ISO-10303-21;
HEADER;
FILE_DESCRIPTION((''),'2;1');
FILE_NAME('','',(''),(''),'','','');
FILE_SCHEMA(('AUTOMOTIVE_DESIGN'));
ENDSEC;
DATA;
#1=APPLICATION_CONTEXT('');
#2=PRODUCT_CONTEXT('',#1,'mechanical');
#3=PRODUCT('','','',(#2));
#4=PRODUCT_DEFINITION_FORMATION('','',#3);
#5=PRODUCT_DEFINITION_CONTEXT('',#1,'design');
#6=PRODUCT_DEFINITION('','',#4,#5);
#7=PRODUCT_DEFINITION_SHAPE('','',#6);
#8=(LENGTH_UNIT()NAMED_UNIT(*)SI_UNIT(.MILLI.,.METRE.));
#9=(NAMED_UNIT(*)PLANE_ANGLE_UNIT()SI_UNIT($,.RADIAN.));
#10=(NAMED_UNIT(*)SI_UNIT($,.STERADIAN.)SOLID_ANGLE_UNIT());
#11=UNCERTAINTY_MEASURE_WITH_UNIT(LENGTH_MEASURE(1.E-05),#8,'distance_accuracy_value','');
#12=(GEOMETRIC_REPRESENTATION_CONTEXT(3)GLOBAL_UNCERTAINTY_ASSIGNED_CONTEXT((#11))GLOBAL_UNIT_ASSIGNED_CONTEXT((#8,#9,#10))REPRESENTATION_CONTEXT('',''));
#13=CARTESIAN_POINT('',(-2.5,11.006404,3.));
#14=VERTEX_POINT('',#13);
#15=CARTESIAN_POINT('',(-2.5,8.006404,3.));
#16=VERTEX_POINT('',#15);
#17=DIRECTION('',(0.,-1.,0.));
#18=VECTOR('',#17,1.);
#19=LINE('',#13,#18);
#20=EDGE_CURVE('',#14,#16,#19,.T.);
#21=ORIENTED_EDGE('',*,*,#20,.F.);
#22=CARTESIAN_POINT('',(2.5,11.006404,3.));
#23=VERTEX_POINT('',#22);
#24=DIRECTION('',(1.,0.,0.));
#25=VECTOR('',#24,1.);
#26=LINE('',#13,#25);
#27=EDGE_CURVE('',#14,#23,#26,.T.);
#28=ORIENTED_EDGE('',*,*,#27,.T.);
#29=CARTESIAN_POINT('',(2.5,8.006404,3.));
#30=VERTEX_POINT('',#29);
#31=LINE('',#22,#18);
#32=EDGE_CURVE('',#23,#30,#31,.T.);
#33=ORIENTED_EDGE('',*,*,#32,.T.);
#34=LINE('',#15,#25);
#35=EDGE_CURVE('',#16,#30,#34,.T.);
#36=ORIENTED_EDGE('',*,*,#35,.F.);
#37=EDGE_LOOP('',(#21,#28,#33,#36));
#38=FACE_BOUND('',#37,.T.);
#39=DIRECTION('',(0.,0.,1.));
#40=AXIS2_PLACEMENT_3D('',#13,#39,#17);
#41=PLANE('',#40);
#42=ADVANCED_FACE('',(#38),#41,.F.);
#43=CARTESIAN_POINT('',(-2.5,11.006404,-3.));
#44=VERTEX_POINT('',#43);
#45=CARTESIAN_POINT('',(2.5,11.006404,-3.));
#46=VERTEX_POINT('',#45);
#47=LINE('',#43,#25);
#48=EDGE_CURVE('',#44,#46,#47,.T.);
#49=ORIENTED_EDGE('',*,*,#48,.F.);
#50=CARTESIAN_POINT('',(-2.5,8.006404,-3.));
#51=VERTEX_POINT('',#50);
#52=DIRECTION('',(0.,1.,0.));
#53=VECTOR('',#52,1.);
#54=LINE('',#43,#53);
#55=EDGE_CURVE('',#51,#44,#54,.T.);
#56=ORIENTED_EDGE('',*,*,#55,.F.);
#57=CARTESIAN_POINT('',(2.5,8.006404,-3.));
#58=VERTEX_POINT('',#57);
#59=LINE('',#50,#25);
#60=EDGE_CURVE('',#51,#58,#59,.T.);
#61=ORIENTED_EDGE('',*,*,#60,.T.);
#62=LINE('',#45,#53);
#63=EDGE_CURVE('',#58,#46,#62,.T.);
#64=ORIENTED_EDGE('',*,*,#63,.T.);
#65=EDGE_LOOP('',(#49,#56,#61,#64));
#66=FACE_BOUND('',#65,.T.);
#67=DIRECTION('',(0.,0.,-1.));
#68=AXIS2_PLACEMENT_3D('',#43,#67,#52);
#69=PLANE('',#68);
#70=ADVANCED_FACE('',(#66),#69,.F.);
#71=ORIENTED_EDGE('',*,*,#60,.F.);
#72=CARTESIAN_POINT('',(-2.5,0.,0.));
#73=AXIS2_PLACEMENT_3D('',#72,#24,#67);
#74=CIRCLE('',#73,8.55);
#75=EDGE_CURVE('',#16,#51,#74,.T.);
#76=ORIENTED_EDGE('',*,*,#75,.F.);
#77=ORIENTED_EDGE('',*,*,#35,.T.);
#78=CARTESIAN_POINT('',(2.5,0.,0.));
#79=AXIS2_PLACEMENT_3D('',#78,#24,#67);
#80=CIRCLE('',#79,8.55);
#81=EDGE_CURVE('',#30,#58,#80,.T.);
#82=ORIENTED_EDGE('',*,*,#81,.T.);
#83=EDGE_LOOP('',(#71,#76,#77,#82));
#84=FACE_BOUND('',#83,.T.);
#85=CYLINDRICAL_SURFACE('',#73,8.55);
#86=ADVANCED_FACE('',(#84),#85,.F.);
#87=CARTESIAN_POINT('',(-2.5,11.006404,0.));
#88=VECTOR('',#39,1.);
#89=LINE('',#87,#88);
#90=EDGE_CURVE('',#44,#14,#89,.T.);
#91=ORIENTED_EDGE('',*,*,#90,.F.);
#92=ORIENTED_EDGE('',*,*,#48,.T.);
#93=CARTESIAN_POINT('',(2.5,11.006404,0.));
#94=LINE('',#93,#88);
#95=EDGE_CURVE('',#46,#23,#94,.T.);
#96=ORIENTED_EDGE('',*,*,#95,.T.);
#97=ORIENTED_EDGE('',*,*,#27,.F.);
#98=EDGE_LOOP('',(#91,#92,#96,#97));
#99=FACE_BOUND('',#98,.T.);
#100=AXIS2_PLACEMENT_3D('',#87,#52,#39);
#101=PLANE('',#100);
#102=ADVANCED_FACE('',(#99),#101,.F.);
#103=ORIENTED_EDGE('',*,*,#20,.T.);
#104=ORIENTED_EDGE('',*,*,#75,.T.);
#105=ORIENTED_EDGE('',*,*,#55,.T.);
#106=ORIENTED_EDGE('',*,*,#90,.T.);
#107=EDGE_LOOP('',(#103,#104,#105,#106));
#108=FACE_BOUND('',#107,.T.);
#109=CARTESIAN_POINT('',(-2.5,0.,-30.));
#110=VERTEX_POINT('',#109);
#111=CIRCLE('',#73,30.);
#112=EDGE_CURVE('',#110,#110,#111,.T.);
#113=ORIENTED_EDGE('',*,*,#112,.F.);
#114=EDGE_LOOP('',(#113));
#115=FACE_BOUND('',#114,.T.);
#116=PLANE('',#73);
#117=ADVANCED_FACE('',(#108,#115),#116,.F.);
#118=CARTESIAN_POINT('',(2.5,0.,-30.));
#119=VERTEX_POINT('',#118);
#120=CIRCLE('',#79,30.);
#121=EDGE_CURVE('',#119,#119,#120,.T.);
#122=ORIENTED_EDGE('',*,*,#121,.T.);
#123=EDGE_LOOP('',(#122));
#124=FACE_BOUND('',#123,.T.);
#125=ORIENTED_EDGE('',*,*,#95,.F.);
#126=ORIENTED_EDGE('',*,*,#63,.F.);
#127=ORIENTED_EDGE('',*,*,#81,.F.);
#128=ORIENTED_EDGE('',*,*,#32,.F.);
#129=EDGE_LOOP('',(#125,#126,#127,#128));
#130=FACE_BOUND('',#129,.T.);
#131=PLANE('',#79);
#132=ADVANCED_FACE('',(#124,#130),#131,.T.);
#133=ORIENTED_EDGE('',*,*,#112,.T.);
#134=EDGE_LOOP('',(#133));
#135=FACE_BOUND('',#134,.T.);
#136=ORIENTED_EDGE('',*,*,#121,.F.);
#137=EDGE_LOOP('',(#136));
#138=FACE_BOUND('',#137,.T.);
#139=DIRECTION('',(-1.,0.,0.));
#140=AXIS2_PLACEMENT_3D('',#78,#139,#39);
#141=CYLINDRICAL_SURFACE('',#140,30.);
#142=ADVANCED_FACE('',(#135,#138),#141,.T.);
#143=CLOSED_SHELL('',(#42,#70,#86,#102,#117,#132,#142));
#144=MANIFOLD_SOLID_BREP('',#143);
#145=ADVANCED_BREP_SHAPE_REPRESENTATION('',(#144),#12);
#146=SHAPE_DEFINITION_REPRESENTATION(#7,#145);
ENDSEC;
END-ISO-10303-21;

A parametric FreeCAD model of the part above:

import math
import FreeCAD as App
import Part
import Sketcher

V = App.Vector
Q = App.Units.Quantity

doc = App.newDocument("Part")
body = doc.addObject("PartDesign::Body", "Body")

# Sketch on YZ plane
sketch1 = doc.addObject("Sketcher::SketchObject", "Sketch")
body.addObject(sketch1)
sketch1.AttachmentSupport = (doc.YZ_Plane, [""])
sketch1.MapMode = "FlatFace"
sketch1.addGeometry(Part.Circle(V(0, 0, 0), V(0, 0, 1), 30), False)
sketch1.addConstraint([
    Sketcher.Constraint("Coincident", 0, 3, -1, 1),
    Sketcher.Constraint("Diameter", 0, Q("60 mm")),
])
pad1 = doc.addObject("PartDesign::Pad", "Pad")
body.addObject(pad1)
pad1.Profile = sketch1
pad1.Length = 5
pad1.Midplane = True

# Sketch on YZ plane
sketch2 = doc.addObject("Sketcher::SketchObject", "Sketch001")
body.addObject(sketch2)
sketch2.AttachmentSupport = (doc.YZ_Plane, [""])
sketch2.MapMode = "FlatFace"
sketch2.AttachmentOffset = App.Placement(V(0, 0, 2.5), App.Rotation())
sketch2.addGeometry([
    Part.LineSegment(V(11.006404, 3, 0), V(8.006404, 3, 0)),
    Part.ArcOfCircle(Part.Circle(V(0, 0, 0), V(0, 0, 1), 8.55), math.radians(20.540978), math.radians(339.459022)),
    Part.LineSegment(V(8.006404, -3, 0), V(11.006404, -3, 0)),
    Part.LineSegment(V(11.006404, -3, 0), V(11.006404, 3, 0)),
], False)
sketch2.addConstraint([
    Sketcher.Constraint("Coincident", 0, 2, 1, 1),
    Sketcher.Constraint("Coincident", 1, 2, 2, 1),
    Sketcher.Constraint("Coincident", 2, 2, 3, 1),
    Sketcher.Constraint("Coincident", 3, 2, 0, 1),
    Sketcher.Constraint("Horizontal", 0),
    Sketcher.Constraint("Horizontal", 2),
    Sketcher.Constraint("Vertical", 3),
    Sketcher.Constraint("Coincident", 1, 3, -1, 1),
    Sketcher.Constraint("Vertical", 0, 2, 1, 2),
    Sketcher.Constraint("DistanceX", 0, 2, 0, 1, Q("3 mm")),
    Sketcher.Constraint("DistanceY", 3, 1, 3, 2, Q("6 mm")),
    Sketcher.Constraint("Radius", 1, Q("8.55 mm")),
])
pocket1 = doc.addObject("PartDesign::Pocket", "Pocket")
body.addObject(pocket1)
pocket1.Profile = sketch2
pocket1.Type = "ThroughAll"

doc.recompute()
